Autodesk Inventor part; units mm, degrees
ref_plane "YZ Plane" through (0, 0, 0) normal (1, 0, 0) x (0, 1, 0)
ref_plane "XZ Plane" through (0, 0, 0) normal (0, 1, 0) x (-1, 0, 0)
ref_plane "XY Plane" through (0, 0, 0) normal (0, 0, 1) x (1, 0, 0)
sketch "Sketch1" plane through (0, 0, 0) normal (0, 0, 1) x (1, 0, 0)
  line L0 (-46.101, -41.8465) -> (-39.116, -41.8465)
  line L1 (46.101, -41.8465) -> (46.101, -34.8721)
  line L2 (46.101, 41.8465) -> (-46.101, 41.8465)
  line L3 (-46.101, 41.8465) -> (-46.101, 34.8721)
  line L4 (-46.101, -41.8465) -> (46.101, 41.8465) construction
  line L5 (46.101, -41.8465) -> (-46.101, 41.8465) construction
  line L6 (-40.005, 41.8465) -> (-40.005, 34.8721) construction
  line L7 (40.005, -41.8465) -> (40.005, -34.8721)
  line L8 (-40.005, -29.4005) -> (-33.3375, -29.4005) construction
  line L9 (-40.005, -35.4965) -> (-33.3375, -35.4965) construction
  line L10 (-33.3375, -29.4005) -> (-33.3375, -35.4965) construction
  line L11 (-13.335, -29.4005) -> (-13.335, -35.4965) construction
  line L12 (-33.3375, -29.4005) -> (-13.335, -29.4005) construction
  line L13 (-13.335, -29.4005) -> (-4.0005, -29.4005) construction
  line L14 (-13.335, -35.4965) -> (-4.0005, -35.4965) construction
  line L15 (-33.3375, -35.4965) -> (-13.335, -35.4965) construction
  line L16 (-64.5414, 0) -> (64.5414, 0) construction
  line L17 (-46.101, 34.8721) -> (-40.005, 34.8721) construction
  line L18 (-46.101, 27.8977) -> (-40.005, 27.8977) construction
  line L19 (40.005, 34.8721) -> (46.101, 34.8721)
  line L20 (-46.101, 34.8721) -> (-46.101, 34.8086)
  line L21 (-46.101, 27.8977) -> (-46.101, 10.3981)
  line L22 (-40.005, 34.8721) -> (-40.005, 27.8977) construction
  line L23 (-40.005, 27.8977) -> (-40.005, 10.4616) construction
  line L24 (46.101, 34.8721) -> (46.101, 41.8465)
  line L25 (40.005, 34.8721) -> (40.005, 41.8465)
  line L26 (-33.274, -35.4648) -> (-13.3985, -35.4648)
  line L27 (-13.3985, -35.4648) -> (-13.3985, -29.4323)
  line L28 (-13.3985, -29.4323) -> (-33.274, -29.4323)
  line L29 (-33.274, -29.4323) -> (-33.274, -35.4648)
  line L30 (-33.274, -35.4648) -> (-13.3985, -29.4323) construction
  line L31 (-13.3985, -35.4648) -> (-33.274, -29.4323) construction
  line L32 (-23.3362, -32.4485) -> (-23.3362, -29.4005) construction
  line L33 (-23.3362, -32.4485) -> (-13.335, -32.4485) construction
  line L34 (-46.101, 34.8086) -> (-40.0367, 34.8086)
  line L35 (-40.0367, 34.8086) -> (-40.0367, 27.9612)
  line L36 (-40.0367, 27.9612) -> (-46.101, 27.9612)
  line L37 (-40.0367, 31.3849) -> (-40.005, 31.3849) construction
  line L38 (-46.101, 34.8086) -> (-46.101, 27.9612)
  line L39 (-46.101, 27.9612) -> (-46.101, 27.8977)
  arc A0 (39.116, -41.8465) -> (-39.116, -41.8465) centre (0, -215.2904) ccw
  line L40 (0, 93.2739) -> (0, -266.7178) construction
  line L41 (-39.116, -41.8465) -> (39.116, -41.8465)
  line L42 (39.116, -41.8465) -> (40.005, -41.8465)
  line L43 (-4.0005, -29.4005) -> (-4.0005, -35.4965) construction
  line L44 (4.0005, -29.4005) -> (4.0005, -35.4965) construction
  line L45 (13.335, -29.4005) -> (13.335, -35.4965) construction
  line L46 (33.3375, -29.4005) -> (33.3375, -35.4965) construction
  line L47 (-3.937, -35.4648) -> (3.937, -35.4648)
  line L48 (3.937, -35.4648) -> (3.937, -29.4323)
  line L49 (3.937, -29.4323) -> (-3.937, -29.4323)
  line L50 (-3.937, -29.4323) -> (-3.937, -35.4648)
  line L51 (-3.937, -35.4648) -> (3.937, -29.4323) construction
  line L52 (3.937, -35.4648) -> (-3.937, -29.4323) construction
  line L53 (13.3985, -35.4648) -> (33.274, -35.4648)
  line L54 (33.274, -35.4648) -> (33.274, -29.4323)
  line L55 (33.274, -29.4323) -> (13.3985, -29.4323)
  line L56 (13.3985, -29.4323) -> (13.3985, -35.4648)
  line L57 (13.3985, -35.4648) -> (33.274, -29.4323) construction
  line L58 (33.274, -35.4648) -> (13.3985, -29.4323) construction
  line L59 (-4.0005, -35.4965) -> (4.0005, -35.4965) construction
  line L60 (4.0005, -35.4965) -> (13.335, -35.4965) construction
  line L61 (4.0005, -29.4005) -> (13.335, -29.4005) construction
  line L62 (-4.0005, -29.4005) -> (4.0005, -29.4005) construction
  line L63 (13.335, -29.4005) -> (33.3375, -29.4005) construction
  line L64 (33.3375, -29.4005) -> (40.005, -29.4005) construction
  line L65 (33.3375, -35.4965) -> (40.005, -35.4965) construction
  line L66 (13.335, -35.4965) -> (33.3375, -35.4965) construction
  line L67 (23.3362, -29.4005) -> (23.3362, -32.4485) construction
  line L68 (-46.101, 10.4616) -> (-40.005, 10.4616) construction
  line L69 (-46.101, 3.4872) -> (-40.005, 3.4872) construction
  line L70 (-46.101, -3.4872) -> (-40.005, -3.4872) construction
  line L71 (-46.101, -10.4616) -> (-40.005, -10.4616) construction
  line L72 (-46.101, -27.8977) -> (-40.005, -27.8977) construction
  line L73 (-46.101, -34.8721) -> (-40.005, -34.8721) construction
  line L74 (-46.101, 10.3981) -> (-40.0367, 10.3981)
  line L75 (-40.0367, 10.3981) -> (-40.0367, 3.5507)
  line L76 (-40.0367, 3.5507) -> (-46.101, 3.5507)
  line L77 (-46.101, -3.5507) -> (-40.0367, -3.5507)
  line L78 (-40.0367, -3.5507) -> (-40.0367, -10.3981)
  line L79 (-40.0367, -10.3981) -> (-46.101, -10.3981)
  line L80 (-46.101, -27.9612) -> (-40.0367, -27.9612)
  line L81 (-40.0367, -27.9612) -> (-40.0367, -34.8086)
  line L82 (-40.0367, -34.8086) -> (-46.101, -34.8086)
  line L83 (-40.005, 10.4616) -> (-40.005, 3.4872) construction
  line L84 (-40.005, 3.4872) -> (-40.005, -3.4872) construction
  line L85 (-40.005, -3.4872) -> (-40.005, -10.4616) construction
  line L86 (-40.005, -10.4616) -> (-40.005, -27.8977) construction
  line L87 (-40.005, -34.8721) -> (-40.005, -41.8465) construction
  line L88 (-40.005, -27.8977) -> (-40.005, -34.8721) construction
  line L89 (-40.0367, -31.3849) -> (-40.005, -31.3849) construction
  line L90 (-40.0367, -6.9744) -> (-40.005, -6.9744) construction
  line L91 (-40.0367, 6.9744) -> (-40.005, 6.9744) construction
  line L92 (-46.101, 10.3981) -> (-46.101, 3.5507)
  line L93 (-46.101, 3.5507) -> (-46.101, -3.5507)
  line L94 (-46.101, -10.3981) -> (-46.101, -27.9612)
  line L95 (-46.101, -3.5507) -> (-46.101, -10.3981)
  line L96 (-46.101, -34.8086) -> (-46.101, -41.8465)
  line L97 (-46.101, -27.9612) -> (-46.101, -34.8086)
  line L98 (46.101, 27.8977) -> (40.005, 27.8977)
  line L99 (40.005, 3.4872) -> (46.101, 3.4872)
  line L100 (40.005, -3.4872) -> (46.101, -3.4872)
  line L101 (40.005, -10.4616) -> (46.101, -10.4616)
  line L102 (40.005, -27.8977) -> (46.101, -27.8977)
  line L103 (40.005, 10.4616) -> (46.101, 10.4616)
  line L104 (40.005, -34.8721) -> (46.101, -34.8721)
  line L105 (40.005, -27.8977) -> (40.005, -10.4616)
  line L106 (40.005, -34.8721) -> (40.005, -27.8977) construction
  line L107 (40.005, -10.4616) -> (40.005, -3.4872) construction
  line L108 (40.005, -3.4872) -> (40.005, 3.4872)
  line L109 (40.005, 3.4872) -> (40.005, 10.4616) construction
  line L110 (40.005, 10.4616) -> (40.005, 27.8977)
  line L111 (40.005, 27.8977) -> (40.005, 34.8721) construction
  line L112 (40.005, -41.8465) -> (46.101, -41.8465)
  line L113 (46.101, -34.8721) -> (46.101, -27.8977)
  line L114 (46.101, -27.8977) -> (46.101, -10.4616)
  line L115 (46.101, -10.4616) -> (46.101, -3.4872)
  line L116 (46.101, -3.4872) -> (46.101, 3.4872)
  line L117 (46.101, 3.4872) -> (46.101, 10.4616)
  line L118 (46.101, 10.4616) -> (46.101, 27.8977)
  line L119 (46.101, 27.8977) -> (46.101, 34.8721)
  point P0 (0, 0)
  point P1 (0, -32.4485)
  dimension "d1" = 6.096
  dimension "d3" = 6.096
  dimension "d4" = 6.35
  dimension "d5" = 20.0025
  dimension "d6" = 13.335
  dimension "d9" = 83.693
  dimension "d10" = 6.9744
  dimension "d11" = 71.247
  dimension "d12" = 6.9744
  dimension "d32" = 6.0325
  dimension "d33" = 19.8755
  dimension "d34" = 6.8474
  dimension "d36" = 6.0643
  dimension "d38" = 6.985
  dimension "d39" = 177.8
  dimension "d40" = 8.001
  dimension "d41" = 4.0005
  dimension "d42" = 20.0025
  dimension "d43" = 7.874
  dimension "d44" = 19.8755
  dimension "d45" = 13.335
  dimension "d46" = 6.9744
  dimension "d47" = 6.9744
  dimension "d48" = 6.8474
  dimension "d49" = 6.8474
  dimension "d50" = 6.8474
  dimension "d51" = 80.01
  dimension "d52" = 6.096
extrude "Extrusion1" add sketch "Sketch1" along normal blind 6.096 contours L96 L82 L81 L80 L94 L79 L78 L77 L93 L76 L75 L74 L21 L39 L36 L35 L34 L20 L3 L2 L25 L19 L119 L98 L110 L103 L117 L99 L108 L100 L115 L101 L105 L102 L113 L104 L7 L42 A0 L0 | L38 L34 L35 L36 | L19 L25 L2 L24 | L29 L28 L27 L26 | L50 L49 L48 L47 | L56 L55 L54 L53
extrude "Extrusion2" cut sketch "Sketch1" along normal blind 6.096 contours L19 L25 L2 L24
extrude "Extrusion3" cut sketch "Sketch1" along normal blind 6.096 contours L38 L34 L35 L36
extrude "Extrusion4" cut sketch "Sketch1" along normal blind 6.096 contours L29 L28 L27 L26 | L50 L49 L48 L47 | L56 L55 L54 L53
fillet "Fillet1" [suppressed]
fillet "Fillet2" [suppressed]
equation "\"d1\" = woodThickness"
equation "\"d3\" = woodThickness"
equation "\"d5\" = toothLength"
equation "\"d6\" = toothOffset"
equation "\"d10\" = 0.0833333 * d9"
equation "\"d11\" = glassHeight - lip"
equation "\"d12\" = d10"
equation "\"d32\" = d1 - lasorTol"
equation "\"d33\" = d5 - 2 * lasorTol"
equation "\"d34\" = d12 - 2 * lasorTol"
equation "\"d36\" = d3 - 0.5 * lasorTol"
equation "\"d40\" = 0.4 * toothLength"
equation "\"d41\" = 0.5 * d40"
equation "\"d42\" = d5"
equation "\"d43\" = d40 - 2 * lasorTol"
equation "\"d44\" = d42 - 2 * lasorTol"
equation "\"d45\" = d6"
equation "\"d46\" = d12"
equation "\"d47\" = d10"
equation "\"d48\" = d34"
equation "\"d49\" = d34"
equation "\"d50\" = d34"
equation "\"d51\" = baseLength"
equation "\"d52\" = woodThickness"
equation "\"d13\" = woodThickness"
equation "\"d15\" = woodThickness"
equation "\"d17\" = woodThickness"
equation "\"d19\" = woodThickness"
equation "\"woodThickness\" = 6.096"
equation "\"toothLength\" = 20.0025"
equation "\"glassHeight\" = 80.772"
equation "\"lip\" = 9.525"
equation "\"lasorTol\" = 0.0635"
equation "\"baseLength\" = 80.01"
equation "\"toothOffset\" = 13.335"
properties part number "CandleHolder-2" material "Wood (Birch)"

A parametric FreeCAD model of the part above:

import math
import FreeCAD as App
import Part
import Sketcher

V = App.Vector
Q = App.Units.Quantity

doc = App.newDocument("Part")
body = doc.addObject("PartDesign::Body", "Body")

sketch1 = body.newObject("Sketcher::SketchObject", "Sketch")
sketch1.AttachmentSupport = (doc.getObject("XY_Plane"), [""])
sketch1.MapMode = "FlatFace"
sketch1.addGeometry(Part.LineSegment(V(-46.1, -34.8, 0), V(-46.1, -41.8, 0)), False)
sketch1.addGeometry(Part.LineSegment(V(-46.1, -41.8, 0), V(-39.1, -41.8, 0)), False)
sketch1.addGeometry(Part.ArcOfCircle(Part.Circle(V(0, -215.3, 0), V(0, 0, 1), 177.8), math.radians(77), math.radians(103)), False)
sketch1.addGeometry(Part.LineSegment(V(39.1, -41.8, 0), V(40, -41.8, 0)), False)
sketch1.addGeometry(Part.LineSegment(V(40, -41.8, 0), V(40, -34.9, 0)), False)
sketch1.addGeometry(Part.LineSegment(V(40, -34.9, 0), V(46.1, -34.9, 0)), False)
sketch1.addGeometry(Part.LineSegment(V(46.1, -34.9, 0), V(46.1, -27.9, 0)), False)
sketch1.addGeometry(Part.LineSegment(V(46.1, -27.9, 0), V(40, -27.9, 0)), False)
sketch1.addGeometry(Part.LineSegment(V(40, -27.9, 0), V(40, -10.5, 0)), False)
sketch1.addGeometry(Part.LineSegment(V(40, -10.5, 0), V(46.1, -10.5, 0)), False)
sketch1.addGeometry(Part.LineSegment(V(46.1, -10.5, 0), V(46.1, -3.5, 0)), False)
sketch1.addGeometry(Part.LineSegment(V(46.1, -3.5, 0), V(40, -3.5, 0)), False)
sketch1.addGeometry(Part.LineSegment(V(40, -3.5, 0), V(40, 3.5, 0)), False)
sketch1.addGeometry(Part.LineSegment(V(40, 3.5, 0), V(46.1, 3.5, 0)), False)
sketch1.addGeometry(Part.LineSegment(V(46.1, 3.5, 0), V(46.1, 10.5, 0)), False)
sketch1.addGeometry(Part.LineSegment(V(46.1, 10.5, 0), V(40, 10.5, 0)), False)
sketch1.addGeometry(Part.LineSegment(V(40, 10.5, 0), V(40, 27.9, 0)), False)
sketch1.addGeometry(Part.LineSegment(V(40, 27.9, 0), V(46.1, 27.9, 0)), False)
sketch1.addGeometry(Part.LineSegment(V(46.1, 27.9, 0), V(46.1, 41.8, 0)), False)
sketch1.addGeometry(Part.LineSegment(V(46.1, 41.8, 0), V(-46.1, 41.8, 0)), False)
sketch1.addGeometry(Part.LineSegment(V(-46.1, 41.8, 0), V(-46.1, 10.4, 0)), False)
sketch1.addGeometry(Part.LineSegment(V(-46.1, 10.4, 0), V(-40, 10.4, 0)), False)
sketch1.addGeometry(Part.LineSegment(V(-40, 10.4, 0), V(-40, 3.6, 0)), False)
sketch1.addGeometry(Part.LineSegment(V(-40, 3.6, 0), V(-46.1, 3.6, 0)), False)
sketch1.addGeometry(Part.LineSegment(V(-46.1, 3.6, 0), V(-46.1, -3.6, 0)), False)
sketch1.addGeometry(Part.LineSegment(V(-46.1, -3.6, 0), V(-40, -3.6, 0)), False)
sketch1.addGeometry(Part.LineSegment(V(-40, -3.6, 0), V(-40, -10.4, 0)), False)
sketch1.addGeometry(Part.LineSegment(V(-40, -10.4, 0), V(-46.1, -10.4, 0)), False)
sketch1.addGeometry(Part.LineSegment(V(-46.1, -10.4, 0), V(-46.1, -28, 0)), False)
sketch1.addGeometry(Part.LineSegment(V(-46.1, -28, 0), V(-40, -28, 0)), False)
sketch1.addGeometry(Part.LineSegment(V(-40, -28, 0), V(-40, -34.8, 0)), False)
sketch1.addGeometry(Part.LineSegment(V(-40, -34.8, 0), V(-46.1, -34.8, 0)), False)
sketch1.addConstraint(Sketcher.Constraint("Coincident", 0, 2, 1, 1))
sketch1.addConstraint(Sketcher.Constraint("Coincident", 1, 2, 2, 2))
sketch1.addConstraint(Sketcher.Constraint("Coincident", 2, 1, 3, 1))
sketch1.addConstraint(Sketcher.Constraint("Coincident", 3, 2, 4, 1))
sketch1.addConstraint(Sketcher.Constraint("Coincident", 4, 2, 5, 1))
sketch1.addConstraint(Sketcher.Constraint("Coincident", 5, 2, 6, 1))
sketch1.addConstraint(Sketcher.Constraint("Coincident", 6, 2, 7, 1))
sketch1.addConstraint(Sketcher.Constraint("Coincident", 7, 2, 8, 1))
sketch1.addConstraint(Sketcher.Constraint("Coincident", 8, 2, 9, 1))
sketch1.addConstraint(Sketcher.Constraint("Coincident", 9, 2, 10, 1))
sketch1.addConstraint(Sketcher.Constraint("Coincident", 10, 2, 11, 1))
sketch1.addConstraint(Sketcher.Constraint("Coincident", 11, 2, 12, 1))
sketch1.addConstraint(Sketcher.Constraint("Coincident", 12, 2, 13, 1))
sketch1.addConstraint(Sketcher.Constraint("Coincident", 13, 2, 14, 1))
sketch1.addConstraint(Sketcher.Constraint("Coincident", 14, 2, 15, 1))
sketch1.addConstraint(Sketcher.Constraint("Coincident", 15, 2, 16, 1))
sketch1.addConstraint(Sketcher.Constraint("Coincident", 16, 2, 17, 1))
sketch1.addConstraint(Sketcher.Constraint("Coincident", 17, 2, 18, 1))
sketch1.addConstraint(Sketcher.Constraint("Coincident", 18, 2, 19, 1))
sketch1.addConstraint(Sketcher.Constraint("Coincident", 19, 2, 20, 1))
sketch1.addConstraint(Sketcher.Constraint("Coincident", 20, 2, 21, 1))
sketch1.addConstraint(Sketcher.Constraint("Coincident", 21, 2, 22, 1))
sketch1.addConstraint(Sketcher.Constraint("Coincident", 22, 2, 23, 1))
sketch1.addConstraint(Sketcher.Constraint("Coincident", 23, 2, 24, 1))
sketch1.addConstraint(Sketcher.Constraint("Coincident", 24, 2, 25, 1))
sketch1.addConstraint(Sketcher.Constraint("Coincident", 25, 2, 26, 1))
sketch1.addConstraint(Sketcher.Constraint("Coincident", 26, 2, 27, 1))
sketch1.addConstraint(Sketcher.Constraint("Coincident", 27, 2, 28, 1))
sketch1.addConstraint(Sketcher.Constraint("Coincident", 28, 2, 29, 1))
sketch1.addConstraint(Sketcher.Constraint("Coincident", 29, 2, 30, 1))
sketch1.addConstraint(Sketcher.Constraint("Coincident", 30, 2, 31, 1))
sketch1.addConstraint(Sketcher.Constraint("Coincident", 31, 2, 0, 1))
sketch1.addConstraint(Sketcher.Constraint("Vertical", 0))
sketch1.addConstraint(Sketcher.Constraint("Horizontal", 1))
sketch1.addConstraint(Sketcher.Constraint("Horizontal", 3))
sketch1.addConstraint(Sketcher.Constraint("Vertical", 4))
sketch1.addConstraint(Sketcher.Constraint("Horizontal", 5))
sketch1.addConstraint(Sketcher.Constraint("Vertical", 6))
sketch1.addConstraint(Sketcher.Constraint("Horizontal", 7))
sketch1.addConstraint(Sketcher.Constraint("Vertical", 8))
sketch1.addConstraint(Sketcher.Constraint("Horizontal", 9))
sketch1.addConstraint(Sketcher.Constraint("Vertical", 10))
sketch1.addConstraint(Sketcher.Constraint("Horizontal", 11))
sketch1.addConstraint(Sketcher.Constraint("Vertical", 12))
sketch1.addConstraint(Sketcher.Constraint("Horizontal", 13))
sketch1.addConstraint(Sketcher.Constraint("Vertical", 14))
sketch1.addConstraint(Sketcher.Constraint("Horizontal", 15))
sketch1.addConstraint(Sketcher.Constraint("Vertical", 16))
sketch1.addConstraint(Sketcher.Constraint("Horizontal", 17))
sketch1.addConstraint(Sketcher.Constraint("Vertical", 18))
sketch1.addConstraint(Sketcher.Constraint("Horizontal", 19))
sketch1.addConstraint(Sketcher.Constraint("Vertical", 20))
sketch1.addConstraint(Sketcher.Constraint("Horizontal", 21))
sketch1.addConstraint(Sketcher.Constraint("Vertical", 22))
sketch1.addConstraint(Sketcher.Constraint("Horizontal", 23))
sketch1.addConstraint(Sketcher.Constraint("Vertical", 24))
sketch1.addConstraint(Sketcher.Constraint("Horizontal", 25))
sketch1.addConstraint(Sketcher.Constraint("Vertical", 26))
sketch1.addConstraint(Sketcher.Constraint("Horizontal", 27))
sketch1.addConstraint(Sketcher.Constraint("Vertical", 28))
sketch1.addConstraint(Sketcher.Constraint("Horizontal", 29))
sketch1.addConstraint(Sketcher.Constraint("Vertical", 30))
sketch1.addConstraint(Sketcher.Constraint("Horizontal", 31))
sketch1.addConstraint(Sketcher.Constraint("Symmetric", 0, 2, 18, 2, -1, 1))
sketch1.addConstraint(Sketcher.Constraint("Symmetric", 1, 2, 2, 1, -2))
sketch1.addConstraint(Sketcher.Constraint("Symmetric", 10, 2, 13, 2, -1))
sketch1.addConstraint(Sketcher.Constraint("Symmetric", 8, 2, 15, 2, -1))
sketch1.addConstraint(Sketcher.Constraint("Symmetric", 6, 2, 17, 2, -1))
sketch1.addConstraint(Sketcher.Constraint("Symmetric", 22, 2, 25, 2, -1))
sketch1.addConstraint(Sketcher.Constraint("Symmetric", 20, 2, 27, 2, -1))
sketch1.addConstraint(Sketcher.Constraint("Vertical", 4, 2, 7, 2))
sketch1.addConstraint(Sketcher.Constraint("Vertical", 6, 2, 9, 2))
sketch1.addConstraint(Sketcher.Constraint("Vertical", 8, 2, 11, 2))
sketch1.addConstraint(Sketcher.Constraint("Vertical", 0, 2, 19, 2))
sketch1.addConstraint(Sketcher.Constraint("Vertical", 20, 2, 23, 2))
sketch1.addConstraint(Sketcher.Constraint("Vertical", 26, 2, 29, 2))
sketch1.addConstraint(Sketcher.Constraint("Equal", 4, 6))
sketch1.addConstraint(Sketcher.Constraint("Equal", 6, 10))
sketch1.addConstraint(Sketcher.Constraint("Equal", 10, 12))
sketch1.addConstraint(Sketcher.Constraint("Equal", 26, 30))
sketch1.addConstraint(Sketcher.Constraint("Radius", 2, Q("7 in")))
sketch1.addConstraint(Sketcher.Constraint("DistanceX", 5, 1, 5, 2, Q("0.24 in")))
sketch1.addConstraint(Sketcher.Constraint("DistanceX", 1, 1, 1, 2, Q("0.275 in")))
sketch1.addConstraint(Sketcher.Constraint("DistanceY", 0, 2, 19, 2, Q("3.295 in")))
sketch1.addConstraint(Sketcher.Constraint("DistanceX", 19, 2, 19, 1, Q("3.63 in")))
sketch1.addConstraint(Sketcher.Constraint("DistanceX", 21, 1, 21, 2, 6.0643))
sketch1.addConstraint(Sketcher.Constraint("DistanceY", 4, 1, 4, 2, 6.9744))
sketch1.addConstraint(Sketcher.Constraint("DistanceY", 22, 2, 22, 1, 6.8474))
sketch1.addConstraint(Sketcher.Constraint("DistanceY", 0, 2, 0, 1, 7.038))
sketch1.addConstraint(Sketcher.Constraint("DistanceY", 20, 2, 20, 1, 31.4484))
pad1 = body.newObject("PartDesign::Pad", "Pad")
pad1.Profile = sketch1
pad1.Length = Q("0.24 in")

sketch2 = body.newObject("Sketcher::SketchObject", "Sketch001")
sketch2.AttachmentSupport = (doc.getObject("XY_Plane"), [""])
sketch2.MapMode = "FlatFace"
sketch2.addGeometry(Part.LineSegment(V(40, 35, 0), V(46, 35, 0)), False)
sketch2.addGeometry(Part.LineSegment(V(46, 35, 0), V(46, 42, 0)), False)
sketch2.addGeometry(Part.LineSegment(V(46, 42, 0), V(40, 42, 0)), False)
sketch2.addGeometry(Part.LineSegment(V(40, 42, 0), V(40, 35, 0)), False)
sketch2.addConstraint(Sketcher.Constraint("Coincident", 0, 2, 1, 1))
sketch2.addConstraint(Sketcher.Constraint("Coincident", 1, 2, 2, 1))
sketch2.addConstraint(Sketcher.Constraint("Coincident", 2, 2, 3, 1))
sketch2.addConstraint(Sketcher.Constraint("Coincident", 3, 2, 0, 1))
sketch2.addConstraint(Sketcher.Constraint("Horizontal", 0))
sketch2.addConstraint(Sketcher.Constraint("Vertical", 1))
sketch2.addConstraint(Sketcher.Constraint("Horizontal", 2))
sketch2.addConstraint(Sketcher.Constraint("Vertical", 3))
sketch2.addConstraint(Sketcher.Constraint("DistanceX", 0, 1, 0, 2, Q("0.24 in")))
sketch2.addConstraint(Sketcher.Constraint("DistanceY", 1, 1, 1, 2, 6.9744))
sketch2.addConstraint(Sketcher.Constraint("DistanceX", -1, 1, 0, 2, Q("1.815 in")))
sketch2.addConstraint(Sketcher.Constraint("DistanceY", -1, 1, 1, 2, Q("1.6475 in")))
pocket1 = body.newObject("PartDesign::Pocket", "Pocket")
pocket1.Profile = sketch2
pocket1.Length = Q("0.24 in")
pocket1.Reversed = True

sketch3 = body.newObject("Sketcher::SketchObject", "Sketch002")
sketch3.AttachmentSupport = (doc.getObject("XY_Plane"), [""])
sketch3.MapMode = "FlatFace"
sketch3.addGeometry(Part.LineSegment(V(-46, 35, 0), V(-46, 28, 0)), False)
sketch3.addGeometry(Part.LineSegment(V(-46, 28, 0), V(-40, 28, 0)), False)
sketch3.addGeometry(Part.LineSegment(V(-40, 28, 0), V(-40, 35, 0)), False)
sketch3.addGeometry(Part.LineSegment(V(-40, 35, 0), V(-46, 35, 0)), False)
sketch3.addConstraint(Sketcher.Constraint("Coincident", 0, 2, 1, 1))
sketch3.addConstraint(Sketcher.Constraint("Coincident", 1, 2, 2, 1))
sketch3.addConstraint(Sketcher.Constraint("Coincident", 2, 2, 3, 1))
sketch3.addConstraint(Sketcher.Constraint("Coincident", 3, 2, 0, 1))
sketch3.addConstraint(Sketcher.Constraint("Vertical", 0))
sketch3.addConstraint(Sketcher.Constraint("Horizontal", 1))
sketch3.addConstraint(Sketcher.Constraint("Vertical", 2))
sketch3.addConstraint(Sketcher.Constraint("Horizontal", 3))
sketch3.addConstraint(Sketcher.Constraint("DistanceX", 1, 1, 1, 2, 6.0643))
sketch3.addConstraint(Sketcher.Constraint("DistanceY", 0, 2, 0, 1, 6.8474))
sketch3.addConstraint(Sketcher.Constraint("DistanceX", 0, 2, -1, 1, Q("1.815 in")))
sketch3.addConstraint(Sketcher.Constraint("DistanceY", -1, 1, 0, 2, 27.9612))
pocket2 = body.newObject("PartDesign::Pocket", "Pocket001")
pocket2.Profile = sketch3
pocket2.Length = Q("0.24 in")
pocket2.Reversed = True

sketch4 = body.newObject("Sketcher::SketchObject", "Sketch003")
sketch4.AttachmentSupport = (doc.getObject("XY_Plane"), [""])
sketch4.MapMode = "FlatFace"
sketch4.addGeometry(Part.LineSegment(V(-33, -29, 0), V(-33, -35, 0)), False)
sketch4.addGeometry(Part.LineSegment(V(-33, -35, 0), V(-13, -35, 0)), False)
sketch4.addGeometry(Part.LineSegment(V(-13, -35, 0), V(-13, -29, 0)), False)
sketch4.addGeometry(Part.LineSegment(V(-13, -29, 0), V(-33, -29, 0)), False)
sketch4.addGeometry(Part.LineSegment(V(-4, -29, 0), V(-4, -35, 0)), False)
sketch4.addGeometry(Part.LineSegment(V(-4, -35, 0), V(4, -35, 0)), False)
sketch4.addGeometry(Part.LineSegment(V(4, -35, 0), V(4, -29, 0)), False)
sketch4.addGeometry(Part.LineSegment(V(4, -29, 0), V(-4, -29, 0)), False)
sketch4.addGeometry(Part.LineSegment(V(13, -29, 0), V(13, -35, 0)), False)
sketch4.addGeometry(Part.LineSegment(V(13, -35, 0), V(33, -35, 0)), False)
sketch4.addGeometry(Part.LineSegment(V(33, -35, 0), V(33, -29, 0)), False)
sketch4.addGeometry(Part.LineSegment(V(33, -29, 0), V(13, -29, 0)), False)
sketch4.addConstraint(Sketcher.Constraint("Coincident", 0, 2, 1, 1))
sketch4.addConstraint(Sketcher.Constraint("Coincident", 1, 2, 2, 1))
sketch4.addConstraint(Sketcher.Constraint("Coincident", 2, 2, 3, 1))
sketch4.addConstraint(Sketcher.Constraint("Coincident", 3, 2, 0, 1))
sketch4.addConstraint(Sketcher.Constraint("Coincident", 4, 2, 5, 1))
sketch4.addConstraint(Sketcher.Constraint("Coincident", 5, 2, 6, 1))
sketch4.addConstraint(Sketcher.Constraint("Coincident", 6, 2, 7, 1))
sketch4.addConstraint(Sketcher.Constraint("Coincident", 7, 2, 4, 1))
sketch4.addConstraint(Sketcher.Constraint("Coincident", 8, 2, 9, 1))
sketch4.addConstraint(Sketcher.Constraint("Coincident", 9, 2, 10, 1))
sketch4.addConstraint(Sketcher.Constraint("Coincident", 10, 2, 11, 1))
sketch4.addConstraint(Sketcher.Constraint("Coincident", 11, 2, 8, 1))
sketch4.addConstraint(Sketcher.Constraint("Vertical", 0))
sketch4.addConstraint(Sketcher.Constraint("Horizontal", 1))
sketch4.addConstraint(Sketcher.Constraint("Vertical", 2))
sketch4.addConstraint(Sketcher.Constraint("Horizontal", 3))
sketch4.addConstraint(Sketcher.Constraint("Vertical", 4))
sketch4.addConstraint(Sketcher.Constraint("Horizontal", 5))
sketch4.addConstraint(Sketcher.Constraint("Vertical", 6))
sketch4.addConstraint(Sketcher.Constraint("Horizontal", 7))
sketch4.addConstraint(Sketcher.Constraint("Vertical", 8))
sketch4.addConstraint(Sketcher.Constraint("Horizontal", 9))
sketch4.addConstraint(Sketcher.Constraint("Vertical", 10))
sketch4.addConstraint(Sketcher.Constraint("Horizontal", 11))
sketch4.addConstraint(Sketcher.Constraint("Symmetric", 1, 2, 8, 2, -2))
sketch4.addConstraint(Sketcher.Constraint("Symmetric", 3, 2, 10, 2, -2))
sketch4.addConstraint(Sketcher.Constraint("Horizontal", 1, 2, 4, 2))
sketch4.addConstraint(Sketcher.Constraint("Horizontal", 3, 2, 6, 2))
sketch4.addConstraint(Sketcher.Constraint("DistanceX", 5, 1, 5, 2, Q("0.31 in")))
sketch4.addConstraint(Sketcher.Constraint("DistanceX", 1, 1, 1, 2, Q("0.7825 in")))
sketch4.addConstraint(Sketcher.Constraint("DistanceY", 0, 2, 0, 1, Q("0.2375 in")))
sketch4.addConstraint(Sketcher.Constraint("DistanceX", 0, 2, -1, 1, Q("1.31 in")))
sketch4.addConstraint(Sketcher.Constraint("DistanceX", 4, 2, -1, 1, Q("0.155 in")))
sketch4.addConstraint(Sketcher.Constraint("DistanceY", 0, 2, -1, 1, 35.4648))
pocket3 = body.newObject("PartDesign::Pocket", "Pocket002")
pocket3.Profile = sketch4
pocket3.Length = Q("0.24 in")
pocket3.Reversed = True

doc.recompute()
